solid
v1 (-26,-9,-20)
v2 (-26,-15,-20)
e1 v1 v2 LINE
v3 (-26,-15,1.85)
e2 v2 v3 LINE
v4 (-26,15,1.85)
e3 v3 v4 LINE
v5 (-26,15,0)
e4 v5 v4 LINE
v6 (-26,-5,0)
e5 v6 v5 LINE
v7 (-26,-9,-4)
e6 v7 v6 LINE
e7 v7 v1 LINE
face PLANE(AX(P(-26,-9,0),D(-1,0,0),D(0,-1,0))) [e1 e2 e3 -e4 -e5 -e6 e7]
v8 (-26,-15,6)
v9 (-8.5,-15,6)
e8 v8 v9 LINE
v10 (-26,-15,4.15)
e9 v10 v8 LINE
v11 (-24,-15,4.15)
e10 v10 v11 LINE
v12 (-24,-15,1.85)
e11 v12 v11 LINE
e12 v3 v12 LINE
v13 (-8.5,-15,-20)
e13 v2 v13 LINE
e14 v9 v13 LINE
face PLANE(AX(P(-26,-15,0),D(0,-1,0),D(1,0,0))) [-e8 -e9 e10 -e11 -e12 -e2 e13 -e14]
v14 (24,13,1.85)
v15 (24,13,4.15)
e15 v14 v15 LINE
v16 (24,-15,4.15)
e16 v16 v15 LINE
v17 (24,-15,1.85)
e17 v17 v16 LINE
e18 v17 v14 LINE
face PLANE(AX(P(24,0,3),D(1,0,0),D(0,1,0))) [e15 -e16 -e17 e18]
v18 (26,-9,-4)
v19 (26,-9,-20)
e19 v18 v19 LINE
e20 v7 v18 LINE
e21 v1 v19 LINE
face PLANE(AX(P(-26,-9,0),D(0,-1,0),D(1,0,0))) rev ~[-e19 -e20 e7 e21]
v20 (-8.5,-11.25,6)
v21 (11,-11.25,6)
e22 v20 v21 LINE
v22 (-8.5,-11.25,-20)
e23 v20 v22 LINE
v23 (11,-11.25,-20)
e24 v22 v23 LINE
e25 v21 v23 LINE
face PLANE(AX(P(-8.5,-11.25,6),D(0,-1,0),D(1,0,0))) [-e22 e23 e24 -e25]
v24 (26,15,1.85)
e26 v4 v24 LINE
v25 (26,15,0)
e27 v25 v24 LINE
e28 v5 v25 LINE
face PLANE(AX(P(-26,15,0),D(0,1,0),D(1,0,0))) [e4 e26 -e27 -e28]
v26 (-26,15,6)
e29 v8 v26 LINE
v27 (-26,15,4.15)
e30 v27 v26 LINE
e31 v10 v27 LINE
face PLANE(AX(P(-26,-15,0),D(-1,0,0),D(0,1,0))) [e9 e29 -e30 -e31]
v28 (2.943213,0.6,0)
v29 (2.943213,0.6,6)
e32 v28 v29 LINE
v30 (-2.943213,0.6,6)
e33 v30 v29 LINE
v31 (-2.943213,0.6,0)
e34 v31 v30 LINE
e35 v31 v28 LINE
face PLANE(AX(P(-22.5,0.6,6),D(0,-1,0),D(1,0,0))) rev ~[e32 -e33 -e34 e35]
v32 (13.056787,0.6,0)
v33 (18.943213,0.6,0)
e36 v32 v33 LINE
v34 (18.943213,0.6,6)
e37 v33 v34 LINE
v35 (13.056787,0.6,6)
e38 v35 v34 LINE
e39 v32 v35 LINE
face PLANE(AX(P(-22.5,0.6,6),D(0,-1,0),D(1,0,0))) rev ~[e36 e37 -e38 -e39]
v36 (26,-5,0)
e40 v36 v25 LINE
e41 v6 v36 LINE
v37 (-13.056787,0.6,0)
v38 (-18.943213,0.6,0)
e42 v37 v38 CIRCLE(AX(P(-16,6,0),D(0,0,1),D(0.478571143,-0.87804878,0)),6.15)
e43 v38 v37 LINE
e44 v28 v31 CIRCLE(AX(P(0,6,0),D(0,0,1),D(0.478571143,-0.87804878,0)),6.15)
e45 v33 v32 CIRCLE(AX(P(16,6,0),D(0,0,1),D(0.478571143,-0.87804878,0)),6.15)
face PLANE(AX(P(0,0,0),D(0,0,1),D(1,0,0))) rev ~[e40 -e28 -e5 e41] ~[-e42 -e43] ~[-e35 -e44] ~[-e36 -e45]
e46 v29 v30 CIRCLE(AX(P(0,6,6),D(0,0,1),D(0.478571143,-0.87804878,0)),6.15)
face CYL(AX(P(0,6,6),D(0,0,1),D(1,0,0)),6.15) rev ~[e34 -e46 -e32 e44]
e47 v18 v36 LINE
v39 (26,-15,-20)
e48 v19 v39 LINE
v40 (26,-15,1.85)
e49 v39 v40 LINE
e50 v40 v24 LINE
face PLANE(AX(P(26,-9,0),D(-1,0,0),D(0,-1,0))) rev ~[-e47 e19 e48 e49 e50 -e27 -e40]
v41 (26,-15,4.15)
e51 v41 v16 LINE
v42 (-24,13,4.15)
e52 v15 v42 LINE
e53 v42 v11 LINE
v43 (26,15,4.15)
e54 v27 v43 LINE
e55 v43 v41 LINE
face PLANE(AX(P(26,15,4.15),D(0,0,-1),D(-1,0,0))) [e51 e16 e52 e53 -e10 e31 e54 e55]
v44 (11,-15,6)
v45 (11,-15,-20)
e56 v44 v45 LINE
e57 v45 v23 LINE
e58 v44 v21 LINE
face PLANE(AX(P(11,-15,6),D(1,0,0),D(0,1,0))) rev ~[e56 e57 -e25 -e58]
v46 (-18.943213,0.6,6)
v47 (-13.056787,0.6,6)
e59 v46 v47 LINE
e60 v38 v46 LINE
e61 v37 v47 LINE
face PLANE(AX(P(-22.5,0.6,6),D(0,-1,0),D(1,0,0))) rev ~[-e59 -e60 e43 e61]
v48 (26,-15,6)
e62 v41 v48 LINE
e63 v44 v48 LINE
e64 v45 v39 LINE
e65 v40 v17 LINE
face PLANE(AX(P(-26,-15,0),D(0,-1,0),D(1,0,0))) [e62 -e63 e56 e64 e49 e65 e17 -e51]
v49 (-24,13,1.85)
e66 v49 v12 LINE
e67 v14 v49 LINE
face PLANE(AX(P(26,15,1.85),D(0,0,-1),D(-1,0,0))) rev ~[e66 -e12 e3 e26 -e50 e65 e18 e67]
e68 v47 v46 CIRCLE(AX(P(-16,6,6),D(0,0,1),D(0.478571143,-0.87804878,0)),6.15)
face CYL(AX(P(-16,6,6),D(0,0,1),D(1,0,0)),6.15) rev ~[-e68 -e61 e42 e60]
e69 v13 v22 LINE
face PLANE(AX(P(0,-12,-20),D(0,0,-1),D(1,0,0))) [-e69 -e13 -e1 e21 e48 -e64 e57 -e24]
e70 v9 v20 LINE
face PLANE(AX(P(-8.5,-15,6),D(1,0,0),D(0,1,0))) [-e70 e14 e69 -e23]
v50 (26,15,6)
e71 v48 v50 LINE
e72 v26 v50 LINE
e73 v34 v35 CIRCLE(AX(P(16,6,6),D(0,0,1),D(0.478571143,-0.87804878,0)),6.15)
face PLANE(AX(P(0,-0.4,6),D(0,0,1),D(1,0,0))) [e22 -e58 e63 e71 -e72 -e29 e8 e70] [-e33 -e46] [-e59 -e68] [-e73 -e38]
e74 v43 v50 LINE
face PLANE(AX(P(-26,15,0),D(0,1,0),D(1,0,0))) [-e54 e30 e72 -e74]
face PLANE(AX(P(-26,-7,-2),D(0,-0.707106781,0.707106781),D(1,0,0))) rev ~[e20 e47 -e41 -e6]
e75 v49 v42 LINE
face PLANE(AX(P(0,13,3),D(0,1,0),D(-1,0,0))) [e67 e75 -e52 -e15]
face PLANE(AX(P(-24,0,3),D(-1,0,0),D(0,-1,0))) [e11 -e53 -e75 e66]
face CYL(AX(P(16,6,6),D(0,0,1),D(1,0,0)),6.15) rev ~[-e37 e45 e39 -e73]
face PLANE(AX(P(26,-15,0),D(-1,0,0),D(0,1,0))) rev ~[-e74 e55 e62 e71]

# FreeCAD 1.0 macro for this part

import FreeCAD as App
import Part
import Sketcher

V = App.Vector


def edges_at(feature, points):
    """Names of the edges that pass closest to the given points."""
    edges = feature.Shape.Edges
    near = lambda p: min(range(len(edges)), key=lambda i: edges[i].distToShape(Part.Vertex(*p))[0])
    return sorted({f"Edge{near(p) + 1}" for p in points})

doc = App.newDocument("Part")
params = doc.addObject("Spreadsheet::Sheet", "Params")
for row, (alias, value) in enumerate([
    ("sketch1_width", "52 mm"),
    ("sketch1_height", "30 mm"),
    ("pad1_length", "6 mm"),
    ("sketch2_diameter", "12.3 mm"),
    ("pocket1_length", "6 mm"),
    ("sketch3_width", "30 mm"),
    ("sketch3_height", "2.3 mm"),
    ("pocket2_length", "2 mm"),
    ("sketch4_width", "52 mm"),
    ("sketch4_height", "2.3 mm"),
    ("pocket3_length", "2 mm"),
    ("sketch5_width", "30 mm"),
    ("sketch5_height", "2.3 mm"),
    ("pocket4_length", "2 mm"),
    ("sketch6_width", "52 mm"),
    ("sketch6_height", "6 mm"),
    ("pad2_length", "20 mm"),
    ("sketch7_width", "19.5 mm"),
    ("sketch7_height", "3.75 mm"),
    ("pocket5_length", "26 mm"),
    ("chamfer_size", "4 mm"),
    ("sketch8_width", "45 mm"),
    ("sketch8_height", "2 mm"),
    ("pad3_length", "6 mm"),
], start=1):
    params.set(f"A{row}", alias)
    params.set(f"B{row}", "=" + value)
    params.setAlias(f"B{row}", alias)

body = doc.addObject("PartDesign::Body", "Body")

# Sketch on XY plane
sketch1 = body.newObject("Sketcher::SketchObject", "Sketch")
sketch1.AttachmentSupport = (doc.getObject("XY_Plane"), [""])
sketch1.MapMode = "FlatFace"
sketch1.addGeometry([
    Part.LineSegment(V(-26, 15, 0), V(-26, -15, 0)),
    Part.LineSegment(V(-26, -15, 0), V(26, -15, 0)),
    Part.LineSegment(V(26, -15, 0), V(26, 15, 0)),
    Part.LineSegment(V(26, 15, 0), V(-26, 15, 0)),
], False)
sketch1.addConstraint([
    Sketcher.Constraint("Coincident", 0, 2, 1, 1),
    Sketcher.Constraint("Coincident", 1, 2, 2, 1),
    Sketcher.Constraint("Coincident", 2, 2, 3, 1),
    Sketcher.Constraint("Coincident", 3, 2, 0, 1),
    Sketcher.Constraint("Vertical", 0),
    Sketcher.Constraint("Horizontal", 1),
    Sketcher.Constraint("Vertical", 2),
    Sketcher.Constraint("Horizontal", 3),
    Sketcher.Constraint("Symmetric", 0, 2, 2, 2, -1, 1),
    Sketcher.Constraint("DistanceX", 1, 1, 1, 2, 52.0),
    Sketcher.Constraint("DistanceY", 0, 2, 0, 1, 30.0),
])
sketch1.setExpression("Constraints[9]", "Params.sketch1_width")
sketch1.setExpression("Constraints[10]", "Params.sketch1_height")
pad1 = body.newObject("PartDesign::Pad", "Pad")
pad1.Profile = sketch1
pad1.setExpression("Length", "Params.pad1_length")

# Sketch on XY plane
sketch2 = body.newObject("Sketcher::SketchObject", "Sketch001")
sketch2.AttachmentSupport = (doc.getObject("XY_Plane"), [""])
sketch2.MapMode = "FlatFace"
sketch2.AttachmentOffset = App.Placement(V(0, 0, 6), App.Rotation())
sketch2.addGeometry([
    Part.Circle(V(-16, 6, 0), V(0, 0, 1), 6),
    Part.Circle(V(0, 6, 0), V(0, 0, 1), 6),
    Part.Circle(V(16, 6, 0), V(0, 0, 1), 6),
], False)
sketch2.addConstraint([
    Sketcher.Constraint("Equal", 0, 1),
    Sketcher.Constraint("Equal", 1, 2),
    Sketcher.Constraint("Symmetric", 0, 3, 2, 3, -2),
    Sketcher.Constraint("PointOnObject", 1, 3, -2),
    Sketcher.Constraint("Horizontal", 0, 3, 1, 3),
    Sketcher.Constraint("Diameter", 0, 12.3),
    Sketcher.Constraint("DistanceX", 0, 3, -1, 1, 16.0),
    Sketcher.Constraint("DistanceY", -1, 1, 0, 3, 6.0),
])
sketch2.setExpression("Constraints[5]", "Params.sketch2_diameter")
pocket1 = body.newObject("PartDesign::Pocket", "Pocket")
pocket1.Profile = sketch2
pocket1.setExpression("Length", "Params.pocket1_length")

# Sketch on YZ plane
sketch3 = body.newObject("Sketcher::SketchObject", "Sketch002")
sketch3.AttachmentSupport = (doc.getObject("YZ_Plane"), [""])
sketch3.MapMode = "FlatFace"
sketch3.AttachmentOffset = App.Placement(V(0, 0, 26), App.Rotation())
sketch3.addGeometry([
    Part.LineSegment(V(-15, 4.2, 0), V(-15, 1.9, 0)),
    Part.LineSegment(V(-15, 1.9, 0), V(15, 1.9, 0)),
    Part.LineSegment(V(15, 1.9, 0), V(15, 4.2, 0)),
    Part.LineSegment(V(15, 4.2, 0), V(-15, 4.2, 0)),
], False)
sketch3.addConstraint([
    Sketcher.Constraint("Coincident", 0, 2, 1, 1),
    Sketcher.Constraint("Coincident", 1, 2, 2, 1),
    Sketcher.Constraint("Coincident", 2, 2, 3, 1),
    Sketcher.Constraint("Coincident", 3, 2, 0, 1),
    Sketcher.Constraint("Vertical", 0),
    Sketcher.Constraint("Horizontal", 1),
    Sketcher.Constraint("Vertical", 2),
    Sketcher.Constraint("Horizontal", 3),
    Sketcher.Constraint("DistanceX", 1, 1, 1, 2, 30.0),
    Sketcher.Constraint("DistanceY", 0, 2, 0, 1, 2.3),
    Sketcher.Constraint("DistanceX", 0, 2, -1, 1, 15.0),
    Sketcher.Constraint("DistanceY", -1, 1, 0, 2, 1.85),
])
sketch3.setExpression("Constraints[8]", "Params.sketch3_width")
sketch3.setExpression("Constraints[9]", "Params.sketch3_height")
pocket2 = body.newObject("PartDesign::Pocket", "Pocket001")
pocket2.Profile = sketch3
pocket2.setExpression("Length", "Params.pocket2_length")

# Sketch on XZ plane
sketch4 = body.newObject("Sketcher::SketchObject", "Sketch003")
sketch4.AttachmentSupport = (doc.getObject("XZ_Plane"), [""])
sketch4.MapMode = "FlatFace"
sketch4.AttachmentOffset = App.Placement(V(0, 0, -15), App.Rotation())
sketch4.addGeometry([
    Part.LineSegment(V(26, 4.2, 0), V(26, 1.9, 0)),
    Part.LineSegment(V(26, 1.9, 0), V(-26, 1.9, 0)),
    Part.LineSegment(V(-26, 1.9, 0), V(-26, 4.2, 0)),
    Part.LineSegment(V(-26, 4.2, 0), V(26, 4.2, 0)),
], False)
sketch4.addConstraint([
    Sketcher.Constraint("Coincident", 0, 2, 1, 1),
    Sketcher.Constraint("Coincident", 1, 2, 2, 1),
    Sketcher.Constraint("Coincident", 2, 2, 3, 1),
    Sketcher.Constraint("Coincident", 3, 2, 0, 1),
    Sketcher.Constraint("Vertical", 0),
    Sketcher.Constraint("Horizontal", 1),
    Sketcher.Constraint("Vertical", 2),
    Sketcher.Constraint("Horizontal", 3),
    Sketcher.Constraint("DistanceX", 1, 2, 1, 1, 52.0),
    Sketcher.Constraint("DistanceY", 0, 2, 0, 1, 2.3),
    Sketcher.Constraint("DistanceX", -1, 1, 0, 2, 26.0),
    Sketcher.Constraint("DistanceY", -1, 1, 0, 2, 1.85),
])
sketch4.setExpression("Constraints[8]", "Params.sketch4_width")
sketch4.setExpression("Constraints[9]", "Params.sketch4_height")
pocket3 = body.newObject("PartDesign::Pocket", "Pocket002")
pocket3.Profile = sketch4
pocket3.setExpression("Length", "Params.pocket3_length")
pocket3.Reversed = True

# Sketch on YZ plane
sketch5 = body.newObject("Sketcher::SketchObject", "Sketch004")
sketch5.AttachmentSupport = (doc.getObject("YZ_Plane"), [""])
sketch5.MapMode = "FlatFace"
sketch5.AttachmentOffset = App.Placement(V(0, 0, -26), App.Rotation())
sketch5.addGeometry([
    Part.LineSegment(V(15, 4.2, 0), V(15, 1.9, 0)),
    Part.LineSegment(V(15, 1.9, 0), V(-15, 1.9, 0)),
    Part.LineSegment(V(-15, 1.9, 0), V(-15, 4.2, 0)),
    Part.LineSegment(V(-15, 4.2, 0), V(15, 4.2, 0)),
], False)
sketch5.addConstraint([
    Sketcher.Constraint("Coincident", 0, 2, 1, 1),
    Sketcher.Constraint("Coincident", 1, 2, 2, 1),
    Sketcher.Constraint("Coincident", 2, 2, 3, 1),
    Sketcher.Constraint("Coincident", 3, 2, 0, 1),
    Sketcher.Constraint("Vertical", 0),
    Sketcher.Constraint("Horizontal", 1),
    Sketcher.Constraint("Vertical", 2),
    Sketcher.Constraint("Horizontal", 3),
    Sketcher.Constraint("DistanceX", 1, 2, 1, 1, 30.0),
    Sketcher.Constraint("DistanceY", 0, 2, 0, 1, 2.3),
    Sketcher.Constraint("DistanceX", -1, 1, 0, 2, 15.0),
    Sketcher.Constraint("DistanceY", -1, 1, 0, 2, 1.85),
])
sketch5.setExpression("Constraints[8]", "Params.sketch5_width")
sketch5.setExpression("Constraints[9]", "Params.sketch5_height")
pocket4 = body.newObject("PartDesign::Pocket", "Pocket003")
pocket4.Profile = sketch5
pocket4.setExpression("Length", "Params.pocket4_length")
pocket4.Reversed = True

# Sketch on XY plane
sketch6 = body.newObject("Sketcher::SketchObject", "Sketch005")
sketch6.AttachmentSupport = (doc.getObject("XY_Plane"), [""])
sketch6.MapMode = "FlatFace"
sketch6.addGeometry([
    Part.LineSegment(V(-26, -15, 0), V(-26, -9, 0)),
    Part.LineSegment(V(-26, -9, 0), V(26, -9, 0)),
    Part.LineSegment(V(26, -9, 0), V(26, -15, 0)),
    Part.LineSegment(V(26, -15, 0), V(-26, -15, 0)),
], False)
sketch6.addConstraint([
    Sketcher.Constraint("Coincident", 0, 2, 1, 1),
    Sketcher.Constraint("Coincident", 1, 2, 2, 1),
    Sketcher.Constraint("Coincident", 2, 2, 3, 1),
    Sketcher.Constraint("Coincident", 3, 2, 0, 1),
    Sketcher.Constraint("Vertical", 0),
    Sketcher.Constraint("Horizontal", 1),
    Sketcher.Constraint("Vertical", 2),
    Sketcher.Constraint("Horizontal", 3),
    Sketcher.Constraint("DistanceX", 1, 1, 1, 2, 52.0),
    Sketcher.Constraint("DistanceY", 0, 1, 0, 2, 6.0),
    Sketcher.Constraint("DistanceX", 0, 2, -1, 1, 26.0),
    Sketcher.Constraint("DistanceY", 0, 2, -1, 1, 9.0),
])
sketch6.setExpression("Constraints[8]", "Params.sketch6_width")
sketch6.setExpression("Constraints[9]", "Params.sketch6_height")
pad2 = body.newObject("PartDesign::Pad", "Pad001")
pad2.Profile = sketch6
pad2.setExpression("Length", "Params.pad2_length")
pad2.Reversed = True

# Sketch on XY plane
sketch7 = body.newObject("Sketcher::SketchObject", "Sketch006")
sketch7.AttachmentSupport = (doc.getObject("XY_Plane"), [""])
sketch7.MapMode = "FlatFace"
sketch7.AttachmentOffset = App.Placement(V(0, 0, 6), App.Rotation())
sketch7.addGeometry([
    Part.LineSegment(V(-8.5, -11.2, 0), V(-8.5, -15, 0)),
    Part.LineSegment(V(-8.5, -15, 0), V(11, -15, 0)),
    Part.LineSegment(V(11, -15, 0), V(11, -11.2, 0)),
    Part.LineSegment(V(11, -11.2, 0), V(-8.5, -11.2, 0)),
], False)
sketch7.addConstraint([
    Sketcher.Constraint("Coincident", 0, 2, 1, 1),
    Sketcher.Constraint("Coincident", 1, 2, 2, 1),
    Sketcher.Constraint("Coincident", 2, 2, 3, 1),
    Sketcher.Constraint("Coincident", 3, 2, 0, 1),
    Sketcher.Constraint("Vertical", 0),
    Sketcher.Constraint("Horizontal", 1),
    Sketcher.Constraint("Vertical", 2),
    Sketcher.Constraint("Horizontal", 3),
    Sketcher.Constraint("DistanceX", 1, 1, 1, 2, 19.5),
    Sketcher.Constraint("DistanceY", 0, 2, -1, 1, 15.0),
    Sketcher.Constraint("DistanceX", -1, 1, 1, 2, 11.0),
    Sketcher.Constraint("DistanceY", 0, 2, 0, 1, 3.75),
])
sketch7.setExpression("Constraints[8]", "Params.sketch7_width")
sketch7.setExpression("Constraints[11]", "Params.sketch7_height")
pocket5 = body.newObject("PartDesign::Pocket", "Pocket004")
pocket5.Profile = sketch7
pocket5.setExpression("Length", "Params.pocket5_length")
doc.recompute()

chamfer = body.newObject("PartDesign::Chamfer", "Chamfer")
chamfer.Base = (pocket5, edges_at(pocket5, [(0, -9, 0)]))
chamfer.setExpression("Size", "Params.chamfer_size")

# Sketch on XY plane
sketch8 = body.newObject("Sketcher::SketchObject", "Sketch007")
sketch8.AttachmentSupport = (doc.getObject("XY_Plane"), [""])
sketch8.MapMode = "FlatFace"
sketch8.AttachmentOffset = App.Placement(V(0, 0, 6), App.Rotation())
sketch8.addGeometry([
    Part.LineSegment(V(-22.5, 0.6, 0), V(-22.5, -1.4, 0)),
    Part.LineSegment(V(-22.5, -1.4, 0), V(22.5, -1.4, 0)),
    Part.LineSegment(V(22.5, -1.4, 0), V(22.5, 0.6, 0)),
    Part.LineSegment(V(22.5, 0.6, 0), V(-22.5, 0.6, 0)),
], False)
sketch8.addConstraint([
    Sketcher.Constraint("Coincident", 0, 2, 1, 1),
    Sketcher.Constraint("Coincident", 1, 2, 2, 1),
    Sketcher.Constraint("Coincident", 2, 2, 3, 1),
    Sketcher.Constraint("Coincident", 3, 2, 0, 1),
    Sketcher.Constraint("Vertical", 0),
    Sketcher.Constraint("Horizontal", 1),
    Sketcher.Constraint("Vertical", 2),
    Sketcher.Constraint("Horizontal", 3),
    Sketcher.Constraint("DistanceX", 1, 1, 1, 2, 45.0),
    Sketcher.Constraint("DistanceY", 0, 2, 0, 1, 2.0),
    Sketcher.Constraint("DistanceX", 0, 2, -1, 1, 22.5),
    Sketcher.Constraint("DistanceY", 0, 2, -1, 1, 1.4),
])
sketch8.setExpression("Constraints[8]", "Params.sketch8_width")
sketch8.setExpression("Constraints[9]", "Params.sketch8_height")
pad3 = body.newObject("PartDesign::Pad", "Pad002")
pad3.Profile = sketch8
pad3.setExpression("Length", "Params.pad3_length")
pad3.Reversed = True

doc.recompute()
